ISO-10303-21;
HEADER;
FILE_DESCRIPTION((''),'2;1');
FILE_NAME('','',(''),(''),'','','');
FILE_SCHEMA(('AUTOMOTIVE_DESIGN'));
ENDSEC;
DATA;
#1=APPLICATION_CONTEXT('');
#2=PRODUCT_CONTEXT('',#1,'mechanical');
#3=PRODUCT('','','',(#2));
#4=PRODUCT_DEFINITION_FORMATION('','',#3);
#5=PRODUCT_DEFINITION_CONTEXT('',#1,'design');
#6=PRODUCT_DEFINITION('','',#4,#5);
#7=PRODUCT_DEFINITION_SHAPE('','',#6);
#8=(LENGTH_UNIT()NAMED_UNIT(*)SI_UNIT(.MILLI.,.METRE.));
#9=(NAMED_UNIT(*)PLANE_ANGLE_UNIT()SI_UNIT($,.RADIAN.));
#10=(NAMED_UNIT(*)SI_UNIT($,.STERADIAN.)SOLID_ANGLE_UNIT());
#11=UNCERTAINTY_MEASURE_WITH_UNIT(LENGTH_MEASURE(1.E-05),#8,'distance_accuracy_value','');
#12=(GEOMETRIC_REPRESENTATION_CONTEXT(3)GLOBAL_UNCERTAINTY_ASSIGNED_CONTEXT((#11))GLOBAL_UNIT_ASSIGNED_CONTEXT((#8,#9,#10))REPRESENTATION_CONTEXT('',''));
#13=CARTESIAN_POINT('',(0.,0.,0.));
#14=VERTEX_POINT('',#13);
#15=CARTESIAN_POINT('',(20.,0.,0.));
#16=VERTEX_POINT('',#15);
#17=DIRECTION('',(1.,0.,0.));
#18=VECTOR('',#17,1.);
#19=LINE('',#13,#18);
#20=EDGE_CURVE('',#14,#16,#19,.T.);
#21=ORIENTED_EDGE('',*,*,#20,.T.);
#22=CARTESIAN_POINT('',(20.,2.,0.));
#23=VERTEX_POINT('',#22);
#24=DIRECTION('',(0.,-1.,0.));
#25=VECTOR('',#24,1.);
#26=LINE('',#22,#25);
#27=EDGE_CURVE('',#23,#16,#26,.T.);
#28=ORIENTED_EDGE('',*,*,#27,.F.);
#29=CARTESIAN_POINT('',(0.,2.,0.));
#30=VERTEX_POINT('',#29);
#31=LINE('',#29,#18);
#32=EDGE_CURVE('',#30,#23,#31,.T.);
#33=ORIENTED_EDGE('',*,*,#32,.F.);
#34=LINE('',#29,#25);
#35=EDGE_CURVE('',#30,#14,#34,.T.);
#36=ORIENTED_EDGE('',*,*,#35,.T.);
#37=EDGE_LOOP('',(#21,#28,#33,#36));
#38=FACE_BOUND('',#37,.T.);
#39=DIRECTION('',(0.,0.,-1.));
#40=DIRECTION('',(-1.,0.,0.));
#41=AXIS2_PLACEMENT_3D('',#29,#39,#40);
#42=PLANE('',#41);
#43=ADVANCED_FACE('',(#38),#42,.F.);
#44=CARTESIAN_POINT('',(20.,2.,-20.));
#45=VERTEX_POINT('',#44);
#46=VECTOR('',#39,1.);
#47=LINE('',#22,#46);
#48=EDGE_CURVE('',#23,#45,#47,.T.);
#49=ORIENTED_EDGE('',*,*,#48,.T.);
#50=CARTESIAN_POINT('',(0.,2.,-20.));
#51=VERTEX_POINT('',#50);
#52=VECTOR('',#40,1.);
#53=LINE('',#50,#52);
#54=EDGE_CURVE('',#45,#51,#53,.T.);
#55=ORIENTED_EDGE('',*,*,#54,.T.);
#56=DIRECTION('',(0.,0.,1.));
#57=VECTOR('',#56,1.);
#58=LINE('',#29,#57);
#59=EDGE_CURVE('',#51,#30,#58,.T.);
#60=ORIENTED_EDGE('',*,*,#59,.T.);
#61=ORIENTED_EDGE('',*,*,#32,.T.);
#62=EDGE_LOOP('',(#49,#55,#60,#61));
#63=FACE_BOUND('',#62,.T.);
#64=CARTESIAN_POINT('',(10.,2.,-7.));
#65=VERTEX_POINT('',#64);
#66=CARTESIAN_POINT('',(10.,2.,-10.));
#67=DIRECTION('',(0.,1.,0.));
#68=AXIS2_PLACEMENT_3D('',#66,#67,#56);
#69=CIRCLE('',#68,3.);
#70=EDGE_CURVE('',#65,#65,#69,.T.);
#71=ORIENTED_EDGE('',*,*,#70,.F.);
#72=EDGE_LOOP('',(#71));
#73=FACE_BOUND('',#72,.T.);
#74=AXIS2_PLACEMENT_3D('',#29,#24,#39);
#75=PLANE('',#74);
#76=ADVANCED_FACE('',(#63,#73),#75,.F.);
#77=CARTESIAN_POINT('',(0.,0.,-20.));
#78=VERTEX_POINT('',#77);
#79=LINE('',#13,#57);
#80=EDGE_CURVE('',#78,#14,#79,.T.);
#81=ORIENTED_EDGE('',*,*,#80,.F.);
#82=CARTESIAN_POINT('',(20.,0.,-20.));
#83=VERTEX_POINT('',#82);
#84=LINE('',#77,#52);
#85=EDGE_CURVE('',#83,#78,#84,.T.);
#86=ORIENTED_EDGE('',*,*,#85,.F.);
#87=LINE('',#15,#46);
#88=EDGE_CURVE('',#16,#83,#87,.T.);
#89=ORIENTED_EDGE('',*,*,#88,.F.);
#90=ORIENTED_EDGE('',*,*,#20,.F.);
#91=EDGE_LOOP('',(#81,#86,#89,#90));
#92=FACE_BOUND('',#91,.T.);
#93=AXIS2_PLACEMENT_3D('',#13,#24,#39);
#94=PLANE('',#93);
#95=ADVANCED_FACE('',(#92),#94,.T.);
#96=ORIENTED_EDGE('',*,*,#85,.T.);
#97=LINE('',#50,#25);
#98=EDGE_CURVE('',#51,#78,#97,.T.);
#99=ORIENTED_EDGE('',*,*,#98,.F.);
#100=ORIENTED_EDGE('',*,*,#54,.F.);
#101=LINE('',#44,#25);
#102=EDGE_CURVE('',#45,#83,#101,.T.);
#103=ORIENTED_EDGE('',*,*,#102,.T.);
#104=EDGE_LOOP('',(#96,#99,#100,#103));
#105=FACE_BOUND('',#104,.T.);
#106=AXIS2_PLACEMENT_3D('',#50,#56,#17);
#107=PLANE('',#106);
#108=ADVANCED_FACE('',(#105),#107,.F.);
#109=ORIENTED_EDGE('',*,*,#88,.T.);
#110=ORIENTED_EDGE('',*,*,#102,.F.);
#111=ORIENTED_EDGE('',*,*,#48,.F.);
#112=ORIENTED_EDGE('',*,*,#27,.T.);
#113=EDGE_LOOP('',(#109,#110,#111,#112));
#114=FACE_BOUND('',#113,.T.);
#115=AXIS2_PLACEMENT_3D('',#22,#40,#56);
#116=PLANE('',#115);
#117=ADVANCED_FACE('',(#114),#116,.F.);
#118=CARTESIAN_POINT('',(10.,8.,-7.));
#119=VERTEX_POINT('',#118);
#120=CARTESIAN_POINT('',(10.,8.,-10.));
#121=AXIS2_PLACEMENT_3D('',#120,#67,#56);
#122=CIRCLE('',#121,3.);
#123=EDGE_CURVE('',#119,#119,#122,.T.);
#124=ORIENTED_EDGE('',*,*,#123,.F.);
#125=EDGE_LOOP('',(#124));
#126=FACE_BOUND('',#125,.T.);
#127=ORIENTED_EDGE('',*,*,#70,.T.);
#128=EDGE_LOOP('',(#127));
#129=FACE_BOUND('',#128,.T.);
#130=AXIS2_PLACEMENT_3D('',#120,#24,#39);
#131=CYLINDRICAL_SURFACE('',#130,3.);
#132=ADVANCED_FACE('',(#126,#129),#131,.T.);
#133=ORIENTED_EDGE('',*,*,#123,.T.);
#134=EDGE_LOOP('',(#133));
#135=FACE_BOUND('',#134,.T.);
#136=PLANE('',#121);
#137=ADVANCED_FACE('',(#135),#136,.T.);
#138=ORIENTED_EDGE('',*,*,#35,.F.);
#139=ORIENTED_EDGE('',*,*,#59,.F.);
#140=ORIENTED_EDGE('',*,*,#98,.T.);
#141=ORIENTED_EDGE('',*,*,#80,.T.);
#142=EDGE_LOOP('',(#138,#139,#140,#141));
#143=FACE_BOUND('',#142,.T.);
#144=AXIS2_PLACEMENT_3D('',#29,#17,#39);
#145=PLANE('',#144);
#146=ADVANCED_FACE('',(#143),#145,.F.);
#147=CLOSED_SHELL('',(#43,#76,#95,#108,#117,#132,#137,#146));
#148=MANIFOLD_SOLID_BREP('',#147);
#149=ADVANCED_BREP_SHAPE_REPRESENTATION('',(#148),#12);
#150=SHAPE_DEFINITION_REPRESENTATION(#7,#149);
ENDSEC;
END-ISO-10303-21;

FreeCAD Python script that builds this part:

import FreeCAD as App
import Part
import Sketcher
Q = App.Units.Quantity

doc = App.newDocument("Part")
body = doc.addObject("PartDesign::Body", "Body")

# Sketch on XZ plane
sketch1 = body.newObject("Sketcher::SketchObject", "Sketch")
sketch1.AttachmentSupport = (doc.getObject("XZ_Plane"), [""])
sketch1.MapMode = "FlatFace"
sketch1.addGeometry([
    Part.LineSegment(App.Vector(0, -20, 0), App.Vector(0, 0, 0)),
    Part.LineSegment(App.Vector(0, 0, 0), App.Vector(20, 0, 0)),
    Part.LineSegment(App.Vector(20, 0, 0), App.Vector(20, -20, 0)),
    Part.LineSegment(App.Vector(20, -20, 0), App.Vector(0, -20, 0)),
], False)
sketch1.addConstraint([
    Sketcher.Constraint("Coincident", 0, 2, 1, 1),
    Sketcher.Constraint("Coincident", 1, 2, 2, 1),
    Sketcher.Constraint("Coincident", 2, 2, 3, 1),
    Sketcher.Constraint("Coincident", 3, 2, 0, 1),
    Sketcher.Constraint("Vertical", 0),
    Sketcher.Constraint("Horizontal", 1),
    Sketcher.Constraint("Vertical", 2),
    Sketcher.Constraint("Horizontal", 3),
    Sketcher.Constraint("Coincident", 0, 2, -1, 1),
    Sketcher.Constraint("Equal", 3, 0),
    Sketcher.Constraint("DistanceX", 1, 1, 1, 2, Q("20 mm")),
])
pad1 = body.newObject("PartDesign::Pad", "Pad")
pad1.Profile = sketch1
pad1.Length = 2
pad1.Reversed = True

# Sketch on XZ plane
sketch2 = body.newObject("Sketcher::SketchObject", "Sketch001")
sketch2.AttachmentSupport = (doc.getObject("XZ_Plane"), [""])
sketch2.MapMode = "FlatFace"
sketch2.AttachmentOffset = App.Placement(App.Vector(0, 0, -2), App.Rotation())
sketch2.addGeometry(Part.Circle(App.Vector(10, -10, 0), App.Vector(0, 0, 1), 3), False)
sketch2.addConstraint([
    Sketcher.Constraint("Diameter", 0, Q("6 mm")),
    Sketcher.Constraint("DistanceX", -1, 1, 0, 3, Q("10 mm")),
    Sketcher.Constraint("DistanceY", 0, 3, -1, 1, Q("10 mm")),
])
pad2 = body.newObject("PartDesign::Pad", "Pad001")
pad2.Profile = sketch2
pad2.Length = 6
pad2.Reversed = True

doc.recompute()
